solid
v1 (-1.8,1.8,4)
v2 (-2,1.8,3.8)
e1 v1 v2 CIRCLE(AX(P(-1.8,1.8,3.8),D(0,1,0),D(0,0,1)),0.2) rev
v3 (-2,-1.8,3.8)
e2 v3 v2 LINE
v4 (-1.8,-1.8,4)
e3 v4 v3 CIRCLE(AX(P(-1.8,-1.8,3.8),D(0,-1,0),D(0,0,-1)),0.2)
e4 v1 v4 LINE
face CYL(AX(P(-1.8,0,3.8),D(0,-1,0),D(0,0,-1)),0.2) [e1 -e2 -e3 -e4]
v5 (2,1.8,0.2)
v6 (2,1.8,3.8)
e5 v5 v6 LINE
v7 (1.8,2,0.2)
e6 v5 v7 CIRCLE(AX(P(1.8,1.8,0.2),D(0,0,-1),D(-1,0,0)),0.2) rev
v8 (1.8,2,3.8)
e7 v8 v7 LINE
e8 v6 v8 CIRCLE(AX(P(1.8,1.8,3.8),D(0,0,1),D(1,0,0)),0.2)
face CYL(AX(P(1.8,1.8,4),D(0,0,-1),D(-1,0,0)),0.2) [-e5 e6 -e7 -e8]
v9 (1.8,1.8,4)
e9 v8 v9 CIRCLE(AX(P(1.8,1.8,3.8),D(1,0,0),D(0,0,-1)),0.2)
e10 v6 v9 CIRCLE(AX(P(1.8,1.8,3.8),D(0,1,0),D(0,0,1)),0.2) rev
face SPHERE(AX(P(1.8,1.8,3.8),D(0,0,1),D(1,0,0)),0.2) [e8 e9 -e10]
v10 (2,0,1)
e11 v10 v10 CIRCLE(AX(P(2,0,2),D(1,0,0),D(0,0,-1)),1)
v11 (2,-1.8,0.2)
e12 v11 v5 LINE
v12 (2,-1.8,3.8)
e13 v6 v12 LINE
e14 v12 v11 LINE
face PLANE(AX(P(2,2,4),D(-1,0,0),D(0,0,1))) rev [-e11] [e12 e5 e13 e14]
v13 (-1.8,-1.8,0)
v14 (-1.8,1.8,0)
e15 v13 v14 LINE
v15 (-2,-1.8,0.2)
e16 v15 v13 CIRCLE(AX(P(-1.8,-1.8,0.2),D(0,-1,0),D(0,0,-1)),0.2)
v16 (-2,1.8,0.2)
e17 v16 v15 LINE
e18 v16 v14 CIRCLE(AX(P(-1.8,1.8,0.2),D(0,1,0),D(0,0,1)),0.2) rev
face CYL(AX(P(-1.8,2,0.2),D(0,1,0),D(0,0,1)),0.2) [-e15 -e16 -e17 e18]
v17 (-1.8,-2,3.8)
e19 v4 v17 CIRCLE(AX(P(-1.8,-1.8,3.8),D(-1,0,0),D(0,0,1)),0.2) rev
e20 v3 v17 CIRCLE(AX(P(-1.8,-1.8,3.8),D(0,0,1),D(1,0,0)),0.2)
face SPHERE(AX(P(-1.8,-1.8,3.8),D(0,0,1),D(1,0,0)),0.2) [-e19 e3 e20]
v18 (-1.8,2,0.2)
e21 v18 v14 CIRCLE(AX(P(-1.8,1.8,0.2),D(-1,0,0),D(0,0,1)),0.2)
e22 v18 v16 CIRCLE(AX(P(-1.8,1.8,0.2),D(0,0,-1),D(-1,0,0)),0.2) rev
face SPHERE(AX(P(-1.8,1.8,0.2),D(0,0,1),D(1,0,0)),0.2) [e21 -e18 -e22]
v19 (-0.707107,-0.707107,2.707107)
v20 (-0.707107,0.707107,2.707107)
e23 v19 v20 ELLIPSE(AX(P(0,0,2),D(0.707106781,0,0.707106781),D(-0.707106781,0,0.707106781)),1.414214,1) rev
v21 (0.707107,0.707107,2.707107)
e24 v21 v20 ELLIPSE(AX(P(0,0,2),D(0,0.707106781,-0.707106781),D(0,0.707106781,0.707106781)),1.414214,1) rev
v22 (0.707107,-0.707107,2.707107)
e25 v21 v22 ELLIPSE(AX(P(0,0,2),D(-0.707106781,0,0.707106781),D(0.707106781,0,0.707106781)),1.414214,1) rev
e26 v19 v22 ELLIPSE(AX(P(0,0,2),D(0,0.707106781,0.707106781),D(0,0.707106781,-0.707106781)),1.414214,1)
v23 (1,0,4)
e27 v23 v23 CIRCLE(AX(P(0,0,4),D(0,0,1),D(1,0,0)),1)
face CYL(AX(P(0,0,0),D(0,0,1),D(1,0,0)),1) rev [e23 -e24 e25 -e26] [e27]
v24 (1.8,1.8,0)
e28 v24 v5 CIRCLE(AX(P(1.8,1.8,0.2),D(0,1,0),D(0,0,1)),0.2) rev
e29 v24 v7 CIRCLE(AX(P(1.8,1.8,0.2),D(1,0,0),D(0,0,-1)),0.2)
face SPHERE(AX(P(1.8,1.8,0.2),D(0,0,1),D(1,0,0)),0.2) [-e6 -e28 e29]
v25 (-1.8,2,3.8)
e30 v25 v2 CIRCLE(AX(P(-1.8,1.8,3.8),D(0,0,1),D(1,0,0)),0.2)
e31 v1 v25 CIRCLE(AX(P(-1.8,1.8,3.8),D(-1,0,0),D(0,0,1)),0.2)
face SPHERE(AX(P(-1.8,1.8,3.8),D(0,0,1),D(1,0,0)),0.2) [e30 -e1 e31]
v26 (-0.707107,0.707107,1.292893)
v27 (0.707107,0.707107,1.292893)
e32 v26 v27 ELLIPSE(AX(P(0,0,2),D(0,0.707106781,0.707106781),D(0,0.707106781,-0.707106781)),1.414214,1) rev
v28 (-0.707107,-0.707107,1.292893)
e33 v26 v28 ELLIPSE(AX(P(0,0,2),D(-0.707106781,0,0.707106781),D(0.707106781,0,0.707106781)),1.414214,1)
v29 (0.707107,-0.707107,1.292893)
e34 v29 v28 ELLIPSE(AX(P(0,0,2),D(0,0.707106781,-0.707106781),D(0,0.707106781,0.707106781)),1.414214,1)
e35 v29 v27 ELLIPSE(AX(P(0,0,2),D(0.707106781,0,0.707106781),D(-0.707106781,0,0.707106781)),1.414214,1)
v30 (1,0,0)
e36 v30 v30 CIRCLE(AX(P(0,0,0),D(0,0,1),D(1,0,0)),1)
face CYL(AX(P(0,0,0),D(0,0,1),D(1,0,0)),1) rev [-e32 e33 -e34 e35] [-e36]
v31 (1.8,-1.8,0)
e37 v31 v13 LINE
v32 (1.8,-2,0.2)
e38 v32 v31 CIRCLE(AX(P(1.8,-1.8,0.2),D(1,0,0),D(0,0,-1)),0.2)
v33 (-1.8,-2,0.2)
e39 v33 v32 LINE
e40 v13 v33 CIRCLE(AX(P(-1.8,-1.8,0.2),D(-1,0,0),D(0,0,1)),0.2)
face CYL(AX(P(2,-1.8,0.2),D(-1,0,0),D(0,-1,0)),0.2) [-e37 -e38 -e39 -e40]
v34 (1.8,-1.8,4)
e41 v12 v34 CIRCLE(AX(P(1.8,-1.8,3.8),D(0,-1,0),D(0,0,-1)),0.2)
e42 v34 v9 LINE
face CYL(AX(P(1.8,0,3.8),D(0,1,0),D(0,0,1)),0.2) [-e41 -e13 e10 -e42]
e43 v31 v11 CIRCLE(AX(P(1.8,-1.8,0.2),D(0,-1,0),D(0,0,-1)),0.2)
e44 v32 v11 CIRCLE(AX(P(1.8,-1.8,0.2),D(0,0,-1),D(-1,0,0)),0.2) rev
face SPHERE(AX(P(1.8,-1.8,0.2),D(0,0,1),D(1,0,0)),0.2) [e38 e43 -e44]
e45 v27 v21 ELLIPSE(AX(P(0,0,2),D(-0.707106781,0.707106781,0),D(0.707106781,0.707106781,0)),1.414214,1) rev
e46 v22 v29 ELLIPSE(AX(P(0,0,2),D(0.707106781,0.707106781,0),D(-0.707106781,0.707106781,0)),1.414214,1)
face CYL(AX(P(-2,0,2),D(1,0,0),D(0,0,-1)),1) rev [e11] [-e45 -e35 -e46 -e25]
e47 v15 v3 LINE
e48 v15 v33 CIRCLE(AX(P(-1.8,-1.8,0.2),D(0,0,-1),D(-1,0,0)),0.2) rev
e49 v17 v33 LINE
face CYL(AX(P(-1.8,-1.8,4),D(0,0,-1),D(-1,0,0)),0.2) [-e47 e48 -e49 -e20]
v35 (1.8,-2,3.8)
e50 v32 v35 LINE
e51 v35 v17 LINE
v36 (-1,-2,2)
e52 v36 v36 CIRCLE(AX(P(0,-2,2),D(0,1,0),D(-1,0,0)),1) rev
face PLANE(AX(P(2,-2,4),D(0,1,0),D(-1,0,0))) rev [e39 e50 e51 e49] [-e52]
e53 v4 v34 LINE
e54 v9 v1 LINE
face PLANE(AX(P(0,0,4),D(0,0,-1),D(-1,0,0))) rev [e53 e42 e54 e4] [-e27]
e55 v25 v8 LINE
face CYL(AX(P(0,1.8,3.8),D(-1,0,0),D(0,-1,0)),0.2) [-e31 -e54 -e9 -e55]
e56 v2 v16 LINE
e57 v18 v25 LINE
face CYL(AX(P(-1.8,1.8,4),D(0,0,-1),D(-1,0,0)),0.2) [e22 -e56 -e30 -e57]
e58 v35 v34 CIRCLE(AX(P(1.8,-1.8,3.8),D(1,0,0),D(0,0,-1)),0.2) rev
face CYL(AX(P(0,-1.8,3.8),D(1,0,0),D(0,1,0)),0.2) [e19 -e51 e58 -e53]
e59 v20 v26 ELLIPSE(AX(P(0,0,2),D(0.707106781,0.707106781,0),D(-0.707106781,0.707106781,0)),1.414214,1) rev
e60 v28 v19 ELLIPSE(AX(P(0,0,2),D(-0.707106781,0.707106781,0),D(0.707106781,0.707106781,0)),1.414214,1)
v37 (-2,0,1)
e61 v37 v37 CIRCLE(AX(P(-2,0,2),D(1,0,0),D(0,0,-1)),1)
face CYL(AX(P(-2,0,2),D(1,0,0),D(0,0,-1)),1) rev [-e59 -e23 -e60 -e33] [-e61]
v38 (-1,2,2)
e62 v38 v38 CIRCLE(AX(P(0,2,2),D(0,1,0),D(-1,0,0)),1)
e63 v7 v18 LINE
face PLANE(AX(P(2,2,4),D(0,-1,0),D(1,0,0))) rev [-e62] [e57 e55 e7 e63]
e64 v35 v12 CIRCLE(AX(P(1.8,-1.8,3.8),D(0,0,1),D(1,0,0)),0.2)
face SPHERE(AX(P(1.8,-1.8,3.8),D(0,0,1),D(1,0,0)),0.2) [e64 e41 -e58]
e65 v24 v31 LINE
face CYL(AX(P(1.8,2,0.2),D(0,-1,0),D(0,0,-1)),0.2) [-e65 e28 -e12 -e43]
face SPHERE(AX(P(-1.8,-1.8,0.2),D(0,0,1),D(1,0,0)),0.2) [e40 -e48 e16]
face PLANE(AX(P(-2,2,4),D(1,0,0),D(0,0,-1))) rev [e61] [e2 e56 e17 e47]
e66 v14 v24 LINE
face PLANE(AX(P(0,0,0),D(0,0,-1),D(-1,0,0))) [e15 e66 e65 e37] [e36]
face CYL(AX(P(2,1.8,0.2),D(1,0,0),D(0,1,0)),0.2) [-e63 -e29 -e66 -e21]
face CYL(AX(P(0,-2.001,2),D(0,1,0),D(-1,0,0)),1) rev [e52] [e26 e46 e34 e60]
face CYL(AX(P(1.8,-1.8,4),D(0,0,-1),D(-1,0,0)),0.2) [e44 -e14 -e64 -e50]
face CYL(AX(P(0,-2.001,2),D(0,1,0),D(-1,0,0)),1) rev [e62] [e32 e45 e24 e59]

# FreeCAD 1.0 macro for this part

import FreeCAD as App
import Part
import Sketcher

V = App.Vector
Q = App.Units.Quantity


def edges_at(feature, points):
    """Names of the edges that pass closest to the given points."""
    edges = feature.Shape.Edges
    near = lambda p: min(range(len(edges)), key=lambda i: edges[i].distToShape(Part.Vertex(*p))[0])
    return sorted({f"Edge{near(p) + 1}" for p in points})

doc = App.newDocument("Part")
params = doc.addObject("Spreadsheet::Sheet", "Params")
for row, (alias, value) in enumerate([
    ("sketch1_width", "4 mm"),
    ("pad1_length", "4 mm"),
    ("sketch2_diameter", "2 mm"),
    ("sketch3_diameter", "2 mm"),
    ("sketch4_diameter", "2 mm"),
    ("fillet_radius", "0.2 mm"),
], start=1):
    params.set(f"A{row}", alias)
    params.set(f"B{row}", "=" + value)
    params.setAlias(f"B{row}", alias)

body = doc.addObject("PartDesign::Body", "Body")

# Sketch on XY plane
sketch1 = body.newObject("Sketcher::SketchObject", "Sketch")
sketch1.AttachmentSupport = (doc.getObject("XY_Plane"), [""])
sketch1.MapMode = "FlatFace"
sketch1.addGeometry(Part.LineSegment(V(-2, 2, 0), V(-2, -2, 0)), False)
sketch1.addGeometry(Part.LineSegment(V(-2, -2, 0), V(2, -2, 0)), False)
sketch1.addGeometry(Part.LineSegment(V(2, -2, 0), V(2, 2, 0)), False)
sketch1.addGeometry(Part.LineSegment(V(2, 2, 0), V(-2, 2, 0)), False)
sketch1.addConstraint(Sketcher.Constraint("Coincident", 0, 2, 1, 1))
sketch1.addConstraint(Sketcher.Constraint("Coincident", 1, 2, 2, 1))
sketch1.addConstraint(Sketcher.Constraint("Coincident", 2, 2, 3, 1))
sketch1.addConstraint(Sketcher.Constraint("Coincident", 3, 2, 0, 1))
sketch1.addConstraint(Sketcher.Constraint("Vertical", 0))
sketch1.addConstraint(Sketcher.Constraint("Horizontal", 1))
sketch1.addConstraint(Sketcher.Constraint("Vertical", 2))
sketch1.addConstraint(Sketcher.Constraint("Horizontal", 3))
sketch1.addConstraint(Sketcher.Constraint("Symmetric", 0, 2, 2, 2, -1, 1))
sketch1.addConstraint(Sketcher.Constraint("Equal", 3, 0))
sketch1.addConstraint(Sketcher.Constraint("DistanceX", 1, 1, 1, 2, Q("4 mm")))
sketch1.setExpression("Constraints[10]", "Params.sketch1_width")
pad1 = body.newObject("PartDesign::Pad", "Pad")
pad1.Profile = sketch1
pad1.setExpression("Length", "Params.pad1_length")

# Sketch on XZ plane
sketch2 = body.newObject("Sketcher::SketchObject", "Sketch001")
sketch2.AttachmentSupport = (doc.getObject("XZ_Plane"), [""])
sketch2.MapMode = "FlatFace"
sketch2.AttachmentOffset = App.Placement(V(0, 0, -2), App.Rotation())
sketch2.addGeometry(Part.Circle(V(0, 2, 0), V(0, 0, 1), 1), False)
sketch2.addConstraint(Sketcher.Constraint("PointOnObject", 0, 3, -2))
sketch2.addConstraint(Sketcher.Constraint("Diameter", 0, Q("2 mm")))
sketch2.addConstraint(Sketcher.Constraint("DistanceY", -1, 1, 0, 3, Q("2 mm")))
sketch2.setExpression("Constraints[1]", "Params.sketch2_diameter")
pocket1 = body.newObject("PartDesign::Pocket", "Pocket")
pocket1.Profile = sketch2
pocket1.Type = "UpToFirst"
pocket1.Reversed = True

# Sketch on XY plane
sketch3 = body.newObject("Sketcher::SketchObject", "Sketch002")
sketch3.AttachmentSupport = (doc.getObject("XY_Plane"), [""])
sketch3.MapMode = "FlatFace"
sketch3.AttachmentOffset = App.Placement(V(0, 0, 4), App.Rotation())
sketch3.addGeometry(Part.Circle(V(0, 0, 0), V(0, 0, 1), 1), False)
sketch3.addConstraint(Sketcher.Constraint("Coincident", 0, 3, -1, 1))
sketch3.addConstraint(Sketcher.Constraint("Diameter", 0, Q("2 mm")))
sketch3.setExpression("Constraints[1]", "Params.sketch3_diameter")
pocket2 = body.newObject("PartDesign::Pocket", "Pocket001")
pocket2.Profile = sketch3
pocket2.Type = "ThroughAll"

# Sketch on YZ plane
sketch4 = body.newObject("Sketcher::SketchObject", "Sketch003")
sketch4.AttachmentSupport = (doc.getObject("YZ_Plane"), [""])
sketch4.MapMode = "FlatFace"
sketch4.AttachmentOffset = App.Placement(V(0, 0, 2), App.Rotation())
sketch4.addGeometry(Part.Circle(V(0, 2, 0), V(0, 0, 1), 1), False)
sketch4.addConstraint(Sketcher.Constraint("PointOnObject", 0, 3, -2))
sketch4.addConstraint(Sketcher.Constraint("Diameter", 0, Q("2 mm")))
sketch4.addConstraint(Sketcher.Constraint("DistanceY", -1, 1, 0, 3, Q("2 mm")))
sketch4.setExpression("Constraints[1]", "Params.sketch4_diameter")
pocket3 = body.newObject("PartDesign::Pocket", "Pocket002")
pocket3.Profile = sketch4
pocket3.Type = "ThroughAll"
doc.recompute()

fillet = body.newObject("PartDesign::Fillet", "Fillet")
fillet.Base = (pocket3, edges_at(pocket3, [
    (2, 0, 4),
    (0, 2, 4),
    (-2, 0, 4),
    (0, 2, 0),
    (2, 0, 0),
    (0, -2, 0),
    (-2, 0, 0),
    (0, -2, 4),
    (-2, 2, 2),
    (2, 2, 2),
    (2, -2, 2),
    (-2, -2, 2),
]))
fillet.setExpression("Radius", "Params.fillet_radius")

doc.recompute()
